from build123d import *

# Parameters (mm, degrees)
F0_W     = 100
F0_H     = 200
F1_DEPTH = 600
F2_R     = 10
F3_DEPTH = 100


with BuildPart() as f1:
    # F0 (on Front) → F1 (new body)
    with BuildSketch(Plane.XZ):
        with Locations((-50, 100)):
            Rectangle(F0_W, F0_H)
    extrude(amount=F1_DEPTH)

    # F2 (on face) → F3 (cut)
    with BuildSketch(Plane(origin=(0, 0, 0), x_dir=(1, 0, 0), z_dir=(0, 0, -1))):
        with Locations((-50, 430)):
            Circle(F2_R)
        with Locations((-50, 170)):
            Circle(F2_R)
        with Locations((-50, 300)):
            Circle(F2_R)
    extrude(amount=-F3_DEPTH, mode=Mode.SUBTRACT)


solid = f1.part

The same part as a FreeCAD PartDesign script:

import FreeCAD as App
import Part
import Sketcher

doc = App.newDocument("Part")
params = doc.addObject("Spreadsheet::Sheet", "Params")
for row, (alias, value) in enumerate([
    ("sketch1_width", "100 mm"),
    ("sketch1_height", "200 mm"),
    ("pad1_length", "600 mm"),
    ("sketch2_diameter", "20 mm"),
    ("pocket1_length", "100 mm"),
], start=1):
    params.set(f"A{row}", alias)
    params.set(f"B{row}", "=" + value)
    params.setAlias(f"B{row}", alias)

body = doc.addObject("PartDesign::Body", "Body")

# Sketch on XZ plane
sketch1 = body.newObject("Sketcher::SketchObject", "Sketch")
sketch1.AttachmentSupport = (doc.getObject("XZ_Plane"), [""])
sketch1.MapMode = "FlatFace"
sketch1.addGeometry(Part.LineSegment(App.Vector(-100, 200, 0), App.Vector(-100, 0, 0)), False)
sketch1.addGeometry(Part.LineSegment(App.Vector(-100, 0, 0), App.Vector(0, 0, 0)), False)
sketch1.addGeometry(Part.LineSegment(App.Vector(0, 0, 0), App.Vector(0, 200, 0)), False)
sketch1.addGeometry(Part.LineSegment(App.Vector(0, 200, 0), App.Vector(-100, 200, 0)), False)
sketch1.addConstraint(Sketcher.Constraint("Coincident", 0, 2, 1, 1))
sketch1.addConstraint(Sketcher.Constraint("Coincident", 1, 2, 2, 1))
sketch1.addConstraint(Sketcher.Constraint("Coincident", 2, 2, 3, 1))
sketch1.addConstraint(Sketcher.Constraint("Coincident", 3, 2, 0, 1))
sketch1.addConstraint(Sketcher.Constraint("Vertical", 0))
sketch1.addConstraint(Sketcher.Constraint("Horizontal", 1))
sketch1.addConstraint(Sketcher.Constraint("Vertical", 2))
sketch1.addConstraint(Sketcher.Constraint("Horizontal", 3))
sketch1.addConstraint(Sketcher.Constraint("Coincident", 1, 2, -1, 1))
sketch1.addConstraint(Sketcher.Constraint("DistanceX", 1, 1, 1, 2, 100.0))
sketch1.addConstraint(Sketcher.Constraint("DistanceY", 0, 2, 0, 1, 200.0))
sketch1.setExpression("Constraints[9]", "Params.sketch1_width")
sketch1.setExpression("Constraints[10]", "Params.sketch1_height")
pad1 = body.newObject("PartDesign::Pad", "Pad")
pad1.Profile = sketch1
pad1.setExpression("Length", "Params.pad1_length")

# Sketch on XY plane
sketch2 = body.newObject("Sketcher::SketchObject", "Sketch001")
sketch2.AttachmentSupport = (doc.getObject("XY_Plane"), [""])
sketch2.MapMode = "FlatFace"
sketch2.addGeometry(Part.Circle(App.Vector(-50, -430, 0), App.Vector(0, 0, 1), 10), False)
sketch2.addGeometry(Part.Circle(App.Vector(-50, -170, 0), App.Vector(0, 0, 1), 10), False)
sketch2.addGeometry(Part.Circle(App.Vector(-50, -300, 0), App.Vector(0, 0, 1), 10), False)
sketch2.addConstraint(Sketcher.Constraint("Equal", 0, 1))
sketch2.addConstraint(Sketcher.Constraint("Equal", 1, 2))
sketch2.addConstraint(Sketcher.Constraint("Vertical", 0, 3, 1, 3))
sketch2.addConstraint(Sketcher.Constraint("Vertical", 1, 3, 2, 3))
sketch2.addConstraint(Sketcher.Constraint("Diameter", 0, 20.0))
sketch2.addConstraint(Sketcher.Constraint("DistanceX", 0, 3, -1, 1, 50.0))
sketch2.addConstraint(Sketcher.Constraint("DistanceY", 0, 3, -1, 1, 430.0))
sketch2.addConstraint(Sketcher.Constraint("DistanceY", 1, 3, -1, 1, 170.0))
sketch2.addConstraint(Sketcher.Constraint("DistanceY", 2, 3, -1, 1, 300.0))
sketch2.setExpression("Constraints[4]", "Params.sketch2_diameter")
pocket1 = body.newObject("PartDesign::Pocket", "Pocket")
pocket1.Profile = sketch2
pocket1.setExpression("Length", "Params.pocket1_length")
pocket1.Reversed = True

doc.recompute()
